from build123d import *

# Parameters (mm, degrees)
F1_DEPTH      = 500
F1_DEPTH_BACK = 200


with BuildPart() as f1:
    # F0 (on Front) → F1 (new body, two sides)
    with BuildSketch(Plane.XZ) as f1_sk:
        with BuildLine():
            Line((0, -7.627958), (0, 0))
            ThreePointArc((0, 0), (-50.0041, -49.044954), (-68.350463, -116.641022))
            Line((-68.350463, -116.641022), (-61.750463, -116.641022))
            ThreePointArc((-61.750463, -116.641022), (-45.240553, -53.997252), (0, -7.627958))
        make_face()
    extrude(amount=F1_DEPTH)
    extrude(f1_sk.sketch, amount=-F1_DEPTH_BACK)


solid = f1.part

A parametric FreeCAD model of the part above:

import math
import FreeCAD as App
import Part
import Sketcher
from FreeCAD import Vector
Q = App.Units.Quantity

doc = App.newDocument("Part")
params = doc.addObject("Spreadsheet::Sheet", "Params")
for row, (alias, value) in enumerate([
    ("sketch1_radius", "133.700001 mm"),
    ("sketch1_width", "6.6 mm"),
    ("pad1_length", "500 mm"),
    ("pad1_length2", "200 mm"),
], start=1):
    params.set(f"A{row}", alias)
    params.set(f"B{row}", "=" + value)
    params.setAlias(f"B{row}", alias)

body = doc.addObject("PartDesign::Body", "Body")

# Sketch on XZ plane
sketch1 = body.newObject("Sketcher::SketchObject", "Sketch")
sketch1.AttachmentSupport = (doc.getObject("XZ_Plane"), [""])
sketch1.MapMode = "FlatFace"
sketch1.addGeometry(Part.LineSegment(Vector(0, -8, 0), Vector(0, 0, 0)), False)
sketch1.addGeometry(Part.ArcOfCircle(Part.Circle(Vector(65, -117, 0), Vector(0, 0, 1), 134), math.radians(119), math.radians(180)), False)
sketch1.addGeometry(Part.LineSegment(Vector(-68, -117, 0), Vector(-62, -117, 0)), False)
sketch1.addGeometry(Part.ArcOfCircle(Part.Circle(Vector(65, -117, 0), Vector(0, 0, 1), 127), math.radians(121), math.radians(180)), False)
sketch1.addConstraint(Sketcher.Constraint("Coincident", 0, 2, 1, 1))
sketch1.addConstraint(Sketcher.Constraint("Coincident", 1, 2, 2, 1))
sketch1.addConstraint(Sketcher.Constraint("Coincident", 2, 2, 3, 2))
sketch1.addConstraint(Sketcher.Constraint("Coincident", 3, 1, 0, 1))
sketch1.addConstraint(Sketcher.Constraint("Vertical", 0))
sketch1.addConstraint(Sketcher.Constraint("Horizontal", 2))
sketch1.addConstraint(Sketcher.Constraint("Coincident", 0, 2, -1, 1))
sketch1.addConstraint(Sketcher.Constraint("Coincident", 3, 3, 1, 3))
sketch1.addConstraint(Sketcher.Constraint("Horizontal", 3, 3, 1, 2))
sketch1.addConstraint(Sketcher.Constraint("Radius", 1, Q("133.700001 mm")))
sketch1.addConstraint(Sketcher.Constraint("DistanceX", 2, 1, 2, 2, Q("6.6 mm")))
sketch1.addConstraint(Sketcher.Constraint("DistanceY", 0, 1, 0, 2, Q("7.627958 mm")))
sketch1.setExpression("Constraints[9]", "Params.sketch1_radius")
sketch1.setExpression("Constraints[10]", "Params.sketch1_width")
pad1 = body.newObject("PartDesign::Pad", "Pad")
pad1.Profile = sketch1
pad1.Type = "TwoLengths"
pad1.setExpression("Length", "Params.pad1_length")
pad1.setExpression("Length2", "Params.pad1_length2")

doc.recompute()
